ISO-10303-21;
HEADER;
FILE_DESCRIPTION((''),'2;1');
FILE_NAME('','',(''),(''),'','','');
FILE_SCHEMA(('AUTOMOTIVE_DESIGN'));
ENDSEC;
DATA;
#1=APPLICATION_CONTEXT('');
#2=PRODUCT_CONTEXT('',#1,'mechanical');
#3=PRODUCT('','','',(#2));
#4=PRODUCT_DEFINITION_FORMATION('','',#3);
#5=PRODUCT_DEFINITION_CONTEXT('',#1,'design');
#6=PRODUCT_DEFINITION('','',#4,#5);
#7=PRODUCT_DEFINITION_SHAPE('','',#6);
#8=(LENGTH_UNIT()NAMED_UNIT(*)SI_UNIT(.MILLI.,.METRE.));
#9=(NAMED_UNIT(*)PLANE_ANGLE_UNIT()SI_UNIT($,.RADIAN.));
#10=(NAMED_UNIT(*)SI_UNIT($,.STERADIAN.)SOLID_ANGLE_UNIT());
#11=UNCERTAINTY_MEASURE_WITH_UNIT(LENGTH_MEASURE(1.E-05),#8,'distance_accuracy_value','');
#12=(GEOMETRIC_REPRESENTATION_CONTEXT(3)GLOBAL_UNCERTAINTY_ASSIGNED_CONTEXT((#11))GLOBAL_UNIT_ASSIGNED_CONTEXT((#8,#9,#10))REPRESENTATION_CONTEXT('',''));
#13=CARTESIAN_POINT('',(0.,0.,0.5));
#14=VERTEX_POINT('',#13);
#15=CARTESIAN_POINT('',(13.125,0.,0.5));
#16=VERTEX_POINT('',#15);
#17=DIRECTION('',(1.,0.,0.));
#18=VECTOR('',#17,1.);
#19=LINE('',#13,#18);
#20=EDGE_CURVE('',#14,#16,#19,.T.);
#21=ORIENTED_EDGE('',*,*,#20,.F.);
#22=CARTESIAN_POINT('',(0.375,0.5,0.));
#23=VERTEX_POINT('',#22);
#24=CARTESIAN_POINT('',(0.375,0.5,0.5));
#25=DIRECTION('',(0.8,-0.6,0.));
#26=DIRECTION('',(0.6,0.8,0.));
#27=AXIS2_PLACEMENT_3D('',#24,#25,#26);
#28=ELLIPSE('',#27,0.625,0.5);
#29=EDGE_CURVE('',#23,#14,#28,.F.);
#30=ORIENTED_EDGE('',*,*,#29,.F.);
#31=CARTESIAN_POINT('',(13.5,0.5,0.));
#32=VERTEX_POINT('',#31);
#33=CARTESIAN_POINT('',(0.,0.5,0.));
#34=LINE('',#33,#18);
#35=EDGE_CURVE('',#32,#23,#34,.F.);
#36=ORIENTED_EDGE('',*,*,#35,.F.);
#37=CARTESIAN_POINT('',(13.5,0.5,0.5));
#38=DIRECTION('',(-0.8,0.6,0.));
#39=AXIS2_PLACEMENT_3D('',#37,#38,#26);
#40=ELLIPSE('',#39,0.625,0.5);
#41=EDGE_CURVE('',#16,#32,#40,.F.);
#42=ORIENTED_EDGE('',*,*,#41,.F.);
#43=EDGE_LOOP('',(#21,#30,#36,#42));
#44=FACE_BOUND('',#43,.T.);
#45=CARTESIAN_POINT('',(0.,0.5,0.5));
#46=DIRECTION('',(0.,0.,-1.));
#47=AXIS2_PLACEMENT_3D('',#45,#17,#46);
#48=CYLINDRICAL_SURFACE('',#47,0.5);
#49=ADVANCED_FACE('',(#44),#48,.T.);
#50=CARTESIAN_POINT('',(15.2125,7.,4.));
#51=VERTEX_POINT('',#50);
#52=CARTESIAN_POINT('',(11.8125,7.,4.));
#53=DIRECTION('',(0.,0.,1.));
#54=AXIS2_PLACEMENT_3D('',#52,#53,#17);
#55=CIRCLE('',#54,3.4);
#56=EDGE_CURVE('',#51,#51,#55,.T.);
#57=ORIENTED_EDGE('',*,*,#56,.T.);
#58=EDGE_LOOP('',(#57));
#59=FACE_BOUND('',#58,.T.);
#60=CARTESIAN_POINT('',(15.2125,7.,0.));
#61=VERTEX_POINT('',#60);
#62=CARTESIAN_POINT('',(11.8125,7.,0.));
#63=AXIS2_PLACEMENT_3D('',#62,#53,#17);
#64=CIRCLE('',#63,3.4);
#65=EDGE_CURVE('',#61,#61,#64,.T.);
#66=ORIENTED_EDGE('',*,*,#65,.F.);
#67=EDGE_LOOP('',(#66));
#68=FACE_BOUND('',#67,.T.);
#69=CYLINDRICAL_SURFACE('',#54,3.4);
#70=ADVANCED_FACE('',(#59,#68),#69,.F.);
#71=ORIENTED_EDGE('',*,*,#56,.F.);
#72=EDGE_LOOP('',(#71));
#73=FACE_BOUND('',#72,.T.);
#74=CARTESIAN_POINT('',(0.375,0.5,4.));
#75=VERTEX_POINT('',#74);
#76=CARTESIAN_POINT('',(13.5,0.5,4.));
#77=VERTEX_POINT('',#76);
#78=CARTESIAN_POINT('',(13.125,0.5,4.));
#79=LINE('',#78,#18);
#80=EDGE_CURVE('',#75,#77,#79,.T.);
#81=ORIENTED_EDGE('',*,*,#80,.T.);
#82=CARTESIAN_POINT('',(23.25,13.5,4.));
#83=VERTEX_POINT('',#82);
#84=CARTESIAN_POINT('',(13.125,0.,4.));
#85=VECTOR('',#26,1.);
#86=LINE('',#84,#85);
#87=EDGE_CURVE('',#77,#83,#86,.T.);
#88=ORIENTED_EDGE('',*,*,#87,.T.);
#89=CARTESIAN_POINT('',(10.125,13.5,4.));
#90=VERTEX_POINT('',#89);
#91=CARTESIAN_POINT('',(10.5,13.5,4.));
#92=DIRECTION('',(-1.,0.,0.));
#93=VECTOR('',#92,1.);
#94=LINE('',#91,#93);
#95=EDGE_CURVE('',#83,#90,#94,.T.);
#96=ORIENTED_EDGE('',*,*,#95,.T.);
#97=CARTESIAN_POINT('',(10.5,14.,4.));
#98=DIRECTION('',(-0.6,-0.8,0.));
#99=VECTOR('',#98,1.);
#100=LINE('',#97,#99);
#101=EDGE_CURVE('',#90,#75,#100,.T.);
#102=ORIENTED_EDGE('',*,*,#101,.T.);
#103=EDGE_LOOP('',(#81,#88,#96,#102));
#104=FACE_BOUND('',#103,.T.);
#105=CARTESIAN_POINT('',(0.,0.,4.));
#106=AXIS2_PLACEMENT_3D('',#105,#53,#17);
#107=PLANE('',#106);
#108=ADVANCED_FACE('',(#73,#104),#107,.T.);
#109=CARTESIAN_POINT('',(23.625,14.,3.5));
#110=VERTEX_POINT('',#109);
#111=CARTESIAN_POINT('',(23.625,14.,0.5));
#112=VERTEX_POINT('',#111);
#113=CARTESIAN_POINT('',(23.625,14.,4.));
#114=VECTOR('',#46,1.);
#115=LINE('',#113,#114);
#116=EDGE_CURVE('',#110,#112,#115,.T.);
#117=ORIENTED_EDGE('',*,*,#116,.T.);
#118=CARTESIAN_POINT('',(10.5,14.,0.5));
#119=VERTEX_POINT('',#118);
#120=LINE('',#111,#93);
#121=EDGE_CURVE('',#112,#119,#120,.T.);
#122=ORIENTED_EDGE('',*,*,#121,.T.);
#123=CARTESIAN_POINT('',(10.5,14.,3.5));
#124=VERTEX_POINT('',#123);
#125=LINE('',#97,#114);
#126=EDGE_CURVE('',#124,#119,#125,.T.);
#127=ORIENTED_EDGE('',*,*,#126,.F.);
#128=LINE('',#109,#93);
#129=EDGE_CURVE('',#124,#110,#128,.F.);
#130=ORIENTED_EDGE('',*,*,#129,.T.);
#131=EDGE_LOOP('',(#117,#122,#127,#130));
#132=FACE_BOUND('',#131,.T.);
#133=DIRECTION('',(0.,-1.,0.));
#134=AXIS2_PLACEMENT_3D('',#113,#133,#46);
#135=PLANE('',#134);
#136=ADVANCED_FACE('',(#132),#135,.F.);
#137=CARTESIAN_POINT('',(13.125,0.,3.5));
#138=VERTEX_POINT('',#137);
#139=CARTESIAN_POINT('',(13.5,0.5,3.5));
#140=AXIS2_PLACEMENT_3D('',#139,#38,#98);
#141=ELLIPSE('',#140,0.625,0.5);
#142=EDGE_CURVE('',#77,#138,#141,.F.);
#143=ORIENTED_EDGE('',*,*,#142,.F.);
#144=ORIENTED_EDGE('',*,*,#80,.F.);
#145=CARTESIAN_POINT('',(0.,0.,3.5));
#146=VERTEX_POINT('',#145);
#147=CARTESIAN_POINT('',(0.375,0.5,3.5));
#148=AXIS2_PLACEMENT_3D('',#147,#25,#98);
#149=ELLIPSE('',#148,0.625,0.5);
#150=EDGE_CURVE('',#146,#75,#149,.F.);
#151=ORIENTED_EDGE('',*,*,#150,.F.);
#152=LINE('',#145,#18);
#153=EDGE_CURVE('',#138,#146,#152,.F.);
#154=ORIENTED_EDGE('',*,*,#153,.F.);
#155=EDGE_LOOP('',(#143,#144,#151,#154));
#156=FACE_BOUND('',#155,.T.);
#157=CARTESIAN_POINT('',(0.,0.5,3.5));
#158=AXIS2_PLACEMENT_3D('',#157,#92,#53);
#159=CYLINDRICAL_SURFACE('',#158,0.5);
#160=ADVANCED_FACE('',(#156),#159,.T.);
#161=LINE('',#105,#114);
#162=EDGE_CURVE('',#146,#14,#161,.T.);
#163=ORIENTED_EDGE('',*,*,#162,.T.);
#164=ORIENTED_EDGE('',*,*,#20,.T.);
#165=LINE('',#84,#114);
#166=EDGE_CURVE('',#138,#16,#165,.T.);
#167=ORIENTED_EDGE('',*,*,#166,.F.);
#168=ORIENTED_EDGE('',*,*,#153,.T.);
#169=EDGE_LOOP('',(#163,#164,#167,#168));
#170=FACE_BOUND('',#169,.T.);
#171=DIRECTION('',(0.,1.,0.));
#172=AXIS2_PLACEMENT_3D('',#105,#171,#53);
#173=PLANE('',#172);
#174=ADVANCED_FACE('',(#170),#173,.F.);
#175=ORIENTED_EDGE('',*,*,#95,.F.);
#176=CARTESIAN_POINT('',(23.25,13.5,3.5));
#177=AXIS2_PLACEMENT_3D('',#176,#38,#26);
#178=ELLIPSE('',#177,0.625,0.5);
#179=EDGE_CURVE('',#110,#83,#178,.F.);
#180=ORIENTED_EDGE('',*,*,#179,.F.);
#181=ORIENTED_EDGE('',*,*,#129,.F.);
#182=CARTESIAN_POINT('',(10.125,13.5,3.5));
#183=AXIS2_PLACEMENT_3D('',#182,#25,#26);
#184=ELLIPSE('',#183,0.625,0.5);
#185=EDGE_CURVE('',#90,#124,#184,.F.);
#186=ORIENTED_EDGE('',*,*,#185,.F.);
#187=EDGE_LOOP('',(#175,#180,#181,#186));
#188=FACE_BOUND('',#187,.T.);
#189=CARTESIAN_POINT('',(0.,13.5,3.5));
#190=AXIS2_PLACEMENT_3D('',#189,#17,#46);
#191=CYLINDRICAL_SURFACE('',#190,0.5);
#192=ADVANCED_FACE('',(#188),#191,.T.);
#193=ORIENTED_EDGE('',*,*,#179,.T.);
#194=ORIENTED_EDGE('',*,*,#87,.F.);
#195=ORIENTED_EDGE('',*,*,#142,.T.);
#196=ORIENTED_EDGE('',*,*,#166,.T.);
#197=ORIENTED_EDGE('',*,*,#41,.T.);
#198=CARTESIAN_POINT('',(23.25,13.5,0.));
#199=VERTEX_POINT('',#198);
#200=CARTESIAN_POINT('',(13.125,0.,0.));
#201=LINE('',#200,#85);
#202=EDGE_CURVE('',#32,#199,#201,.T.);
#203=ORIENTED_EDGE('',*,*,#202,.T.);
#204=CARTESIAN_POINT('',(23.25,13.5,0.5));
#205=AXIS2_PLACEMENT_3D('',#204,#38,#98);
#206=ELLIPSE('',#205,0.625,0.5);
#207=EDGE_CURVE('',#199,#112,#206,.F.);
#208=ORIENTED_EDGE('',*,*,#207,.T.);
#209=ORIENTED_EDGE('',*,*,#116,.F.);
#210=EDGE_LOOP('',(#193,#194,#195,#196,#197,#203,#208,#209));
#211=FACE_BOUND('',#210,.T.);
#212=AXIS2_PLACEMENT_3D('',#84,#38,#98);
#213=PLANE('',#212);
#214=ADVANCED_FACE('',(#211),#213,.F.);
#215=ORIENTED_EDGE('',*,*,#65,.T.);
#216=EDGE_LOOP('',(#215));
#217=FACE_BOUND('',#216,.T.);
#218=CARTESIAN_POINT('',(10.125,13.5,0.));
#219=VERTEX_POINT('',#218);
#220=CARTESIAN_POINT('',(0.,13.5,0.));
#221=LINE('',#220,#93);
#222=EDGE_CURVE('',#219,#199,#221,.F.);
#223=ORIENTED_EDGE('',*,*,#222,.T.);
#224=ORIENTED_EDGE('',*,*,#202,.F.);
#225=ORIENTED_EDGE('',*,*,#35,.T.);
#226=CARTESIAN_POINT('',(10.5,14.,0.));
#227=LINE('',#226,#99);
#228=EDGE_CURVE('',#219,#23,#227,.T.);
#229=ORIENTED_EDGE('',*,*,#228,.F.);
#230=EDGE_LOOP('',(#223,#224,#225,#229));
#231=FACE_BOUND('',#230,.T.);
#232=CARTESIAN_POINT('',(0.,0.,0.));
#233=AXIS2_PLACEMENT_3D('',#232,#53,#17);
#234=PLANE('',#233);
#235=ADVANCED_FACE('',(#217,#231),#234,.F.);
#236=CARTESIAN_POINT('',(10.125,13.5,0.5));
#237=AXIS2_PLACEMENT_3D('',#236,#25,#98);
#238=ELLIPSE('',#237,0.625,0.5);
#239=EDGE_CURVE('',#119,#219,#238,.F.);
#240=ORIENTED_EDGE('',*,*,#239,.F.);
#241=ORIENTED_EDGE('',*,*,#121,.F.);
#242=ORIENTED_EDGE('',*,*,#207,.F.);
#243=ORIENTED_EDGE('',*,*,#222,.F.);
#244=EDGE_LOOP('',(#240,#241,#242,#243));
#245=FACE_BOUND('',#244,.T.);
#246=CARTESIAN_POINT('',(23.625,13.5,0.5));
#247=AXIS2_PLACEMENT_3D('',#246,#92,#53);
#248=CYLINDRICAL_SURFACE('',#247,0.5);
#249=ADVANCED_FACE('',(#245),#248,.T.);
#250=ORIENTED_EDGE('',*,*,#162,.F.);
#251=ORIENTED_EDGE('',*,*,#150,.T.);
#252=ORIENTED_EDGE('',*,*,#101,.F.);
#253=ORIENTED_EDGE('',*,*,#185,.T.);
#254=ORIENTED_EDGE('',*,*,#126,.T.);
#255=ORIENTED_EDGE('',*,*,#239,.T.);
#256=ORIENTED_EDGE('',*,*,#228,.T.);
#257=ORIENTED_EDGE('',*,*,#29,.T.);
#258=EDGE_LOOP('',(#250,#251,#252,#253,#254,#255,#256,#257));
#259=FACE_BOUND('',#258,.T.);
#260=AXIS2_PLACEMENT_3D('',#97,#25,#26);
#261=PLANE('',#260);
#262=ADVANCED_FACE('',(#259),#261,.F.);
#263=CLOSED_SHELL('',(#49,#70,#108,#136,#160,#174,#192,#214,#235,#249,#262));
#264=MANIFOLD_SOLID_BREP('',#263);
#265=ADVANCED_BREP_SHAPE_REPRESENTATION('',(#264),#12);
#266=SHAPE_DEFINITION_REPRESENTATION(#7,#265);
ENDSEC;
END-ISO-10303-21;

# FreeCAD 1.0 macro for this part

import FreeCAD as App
import Part
import Sketcher


def edges_at(feature, points):
    """Names of the edges that pass closest to the given points."""
    edges = feature.Shape.Edges
    near = lambda p: min(range(len(edges)), key=lambda i: edges[i].distToShape(Part.Vertex(*p))[0])
    return sorted({f"Edge{near(p) + 1}" for p in points})


def add_polygon(sketch, points):
    """Adds a closed chain of lines whose ends are joined by coincident constraints."""
    first, n = sketch.GeometryCount, len(points)
    for a, b in zip(points, points[1:] + points[:1]):
        sketch.addGeometry(Part.LineSegment(App.Vector(*a, 0), App.Vector(*b, 0)), False)
    for i in range(n):
        sketch.addConstraint(Sketcher.Constraint("Coincident", first + i, 2, first + (i + 1) % n, 1))

doc = App.newDocument("Part")
body = doc.addObject("PartDesign::Body", "Body")

sketch1 = body.newObject("Sketcher::SketchObject", "Sketch")
sketch1.AttachmentSupport = (doc.getObject("XY_Plane"), [""])
sketch1.MapMode = "FlatFace"
add_polygon(sketch1, [(10, 14), (0, 0), (13, 0), (24, 14)])
sketch1.addConstraint(Sketcher.Constraint("Horizontal", 1))
sketch1.addConstraint(Sketcher.Constraint("Horizontal", 3))
sketch1.addConstraint(Sketcher.Constraint("Coincident", 0, 2, -1, 1))
sketch1.addConstraint(Sketcher.Constraint("Parallel", 0, 2))
sketch1.addConstraint(Sketcher.Constraint("DistanceY", -1, 1, 2, 2, 14.0))
sketch1.addConstraint(Sketcher.Constraint("Distance", 0, 17.5))
sketch1.addConstraint(Sketcher.Constraint("DistanceX", 1, 1, 1, 2, 13.125))
pad1 = body.newObject("PartDesign::Pad", "Pad")
pad1.Profile = sketch1
pad1.Length = 4

sketch2 = body.newObject("Sketcher::SketchObject", "Sketch001")
sketch2.AttachmentSupport = (doc.getObject("XY_Plane"), [""])
sketch2.MapMode = "FlatFace"
sketch2.AttachmentOffset = App.Placement(App.Vector(0, 0, 4), App.Rotation())
sketch2.addGeometry(Part.Circle(App.Vector(11.8, 7, 0), App.Vector(0, 0, 1), 3.4), False)
sketch2.addConstraint(Sketcher.Constraint("Diameter", 0, 6.8))
sketch2.addConstraint(Sketcher.Constraint("DistanceY", -1, 1, 0, 3, 7.0))
sketch2.addConstraint(Sketcher.Constraint("DistanceX", -1, 1, 0, 3, 11.8125))
doc.recompute()
hole = body.newObject("PartDesign::Hole", "Hole")
hole.Profile = sketch2
hole.ThreadType = "None"
hole.Diameter = 6.8
hole.DepthType = "Dimension"
hole.Depth = 19.75
hole.DrillPoint = "Angled"
hole.DrillPointAngle = 118
doc.recompute()

fillet = body.newObject("PartDesign::Fillet", "Fillet")
fillet.Base = (hole, edges_at(hole, [
    (6.562, 0, 4),
    (17.062, 14, 4),
    (6.562, 0, 0),
    (17.062, 14, 0),
]))
fillet.Radius = 0.5

doc.recompute()
